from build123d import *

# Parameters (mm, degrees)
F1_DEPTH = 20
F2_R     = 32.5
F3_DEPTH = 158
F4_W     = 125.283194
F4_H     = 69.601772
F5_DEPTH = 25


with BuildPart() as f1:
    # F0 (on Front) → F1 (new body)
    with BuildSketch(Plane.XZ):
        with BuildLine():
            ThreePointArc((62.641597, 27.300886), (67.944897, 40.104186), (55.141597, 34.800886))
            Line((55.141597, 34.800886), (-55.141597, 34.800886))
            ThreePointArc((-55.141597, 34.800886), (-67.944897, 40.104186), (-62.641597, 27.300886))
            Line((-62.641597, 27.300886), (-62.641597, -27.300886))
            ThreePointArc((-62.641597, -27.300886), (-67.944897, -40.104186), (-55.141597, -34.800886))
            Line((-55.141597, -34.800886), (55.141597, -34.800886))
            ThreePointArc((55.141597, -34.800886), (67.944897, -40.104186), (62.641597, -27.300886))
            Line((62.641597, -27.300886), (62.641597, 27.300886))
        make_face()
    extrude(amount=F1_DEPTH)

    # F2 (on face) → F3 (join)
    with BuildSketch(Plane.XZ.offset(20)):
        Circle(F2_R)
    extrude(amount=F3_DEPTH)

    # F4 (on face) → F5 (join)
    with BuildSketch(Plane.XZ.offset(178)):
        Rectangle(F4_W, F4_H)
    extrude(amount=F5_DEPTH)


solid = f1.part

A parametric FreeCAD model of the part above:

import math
import FreeCAD as App
import Part
import Sketcher
from FreeCAD import Vector

doc = App.newDocument("Part")
body = doc.addObject("PartDesign::Body", "Body")

# Sketch on XZ plane
sketch1 = body.newObject("Sketcher::SketchObject", "Sketch")
sketch1.AttachmentSupport = (doc.getObject("XZ_Plane"), [""])
sketch1.MapMode = "FlatFace"
sketch1.addGeometry([
    Part.ArcOfCircle(Part.Circle(Vector(63, 35, 0), Vector(0, 0, 1), 7), math.radians(-90), math.radians(180)),  # 0
    Part.LineSegment(Vector(55, 35, 0), Vector(-55, 35, 0)),  # 1
    Part.ArcOfCircle(Part.Circle(Vector(-63, 35, 0), Vector(0, 0, 1), 7), math.radians(0), math.radians(270)),  # 2
    Part.LineSegment(Vector(-63, 27, 0), Vector(-63, -27, 0)),  # 3
    Part.ArcOfCircle(Part.Circle(Vector(-63, -35, 0), Vector(0, 0, 1), 7), math.radians(90), math.radians(360)),  # 4
    Part.LineSegment(Vector(-55, -35, 0), Vector(55, -35, 0)),  # 5
    Part.ArcOfCircle(Part.Circle(Vector(63, -35, 0), Vector(0, 0, 1), 7), math.radians(-180), math.radians(90)),  # 6
    Part.LineSegment(Vector(63, -27, 0), Vector(63, 27, 0)),  # 7
], False)
sketch1.addConstraint([
    Sketcher.Constraint("Coincident", 0, 2, 1, 1),
    Sketcher.Constraint("Coincident", 1, 2, 2, 1),
    Sketcher.Constraint("Coincident", 2, 2, 3, 1),
    Sketcher.Constraint("Coincident", 3, 2, 4, 1),
    Sketcher.Constraint("Coincident", 4, 2, 5, 1),
    Sketcher.Constraint("Coincident", 5, 2, 6, 1),
    Sketcher.Constraint("Coincident", 6, 2, 7, 1),
    Sketcher.Constraint("Coincident", 7, 2, 0, 1),
    Sketcher.Constraint("Horizontal", 1),
    Sketcher.Constraint("Vertical", 3),
    Sketcher.Constraint("Horizontal", 5),
    Sketcher.Constraint("Vertical", 7),
    Sketcher.Constraint("Equal", 0, 2),
    Sketcher.Constraint("Equal", 2, 4),
    Sketcher.Constraint("Equal", 4, 6),
    Sketcher.Constraint("Symmetric", 0, 3, 4, 3, -1, 1),
    Sketcher.Constraint("Symmetric", 2, 3, 6, 3, -1, 1),
    Sketcher.Constraint("Symmetric", 0, 3, 2, 3, -2),
    Sketcher.Constraint("Horizontal", 2, 3, 0, 2),
    Sketcher.Constraint("Horizontal", 6, 3, 4, 2),
    Sketcher.Constraint("Vertical", 4, 3, 2, 2),
    Sketcher.Constraint("Vertical", 0, 3, 6, 2),
    Sketcher.Constraint("Radius", 0, 7.499999),
    Sketcher.Constraint("DistanceY", 3, 2, 3, 1, 54.601772),
    Sketcher.Constraint("DistanceX", 1, 2, 1, 1, 110.283194),
])
pad1 = body.newObject("PartDesign::Pad", "Pad")
pad1.Profile = sketch1
pad1.Length = 20

# Sketch on XZ plane
sketch2 = body.newObject("Sketcher::SketchObject", "Sketch001")
sketch2.AttachmentSupport = (doc.getObject("XZ_Plane"), [""])
sketch2.MapMode = "FlatFace"
sketch2.AttachmentOffset = App.Placement(Vector(0, 0, 20), App.Rotation())
sketch2.addGeometry(Part.Circle(Vector(0, 0, 0), Vector(0, 0, 1), 32), False)
sketch2.addConstraint([
    Sketcher.Constraint("Coincident", 0, 3, -1, 1),
    Sketcher.Constraint("Diameter", 0, 65.0),
])
pad2 = body.newObject("PartDesign::Pad", "Pad001")
pad2.Profile = sketch2
pad2.Length = 158

# Sketch on XZ plane
sketch3 = body.newObject("Sketcher::SketchObject", "Sketch002")
sketch3.AttachmentSupport = (doc.getObject("XZ_Plane"), [""])
sketch3.MapMode = "FlatFace"
sketch3.AttachmentOffset = App.Placement(Vector(0, 0, 178), App.Rotation())
sketch3.addGeometry([
    Part.LineSegment(Vector(-63, 35, 0), Vector(-63, -35, 0)),
    Part.LineSegment(Vector(-63, -35, 0), Vector(63, -35, 0)),
    Part.LineSegment(Vector(63, -35, 0), Vector(63, 35, 0)),
    Part.LineSegment(Vector(63, 35, 0), Vector(-63, 35, 0)),
], False)
sketch3.addConstraint([
    Sketcher.Constraint("Coincident", 0, 2, 1, 1),
    Sketcher.Constraint("Coincident", 1, 2, 2, 1),
    Sketcher.Constraint("Coincident", 2, 2, 3, 1),
    Sketcher.Constraint("Coincident", 3, 2, 0, 1),
    Sketcher.Constraint("Vertical", 0),
    Sketcher.Constraint("Horizontal", 1),
    Sketcher.Constraint("Vertical", 2),
    Sketcher.Constraint("Horizontal", 3),
    Sketcher.Constraint("Symmetric", 0, 2, 2, 2, -1, 1),
    Sketcher.Constraint("DistanceY", 0, 2, 0, 1, 69.601772),
    Sketcher.Constraint("DistanceX", 1, 1, 1, 2, 125.283194),
])
pad3 = body.newObject("PartDesign::Pad", "Pad002")
pad3.Profile = sketch3
pad3.Length = 25

doc.recompute()
